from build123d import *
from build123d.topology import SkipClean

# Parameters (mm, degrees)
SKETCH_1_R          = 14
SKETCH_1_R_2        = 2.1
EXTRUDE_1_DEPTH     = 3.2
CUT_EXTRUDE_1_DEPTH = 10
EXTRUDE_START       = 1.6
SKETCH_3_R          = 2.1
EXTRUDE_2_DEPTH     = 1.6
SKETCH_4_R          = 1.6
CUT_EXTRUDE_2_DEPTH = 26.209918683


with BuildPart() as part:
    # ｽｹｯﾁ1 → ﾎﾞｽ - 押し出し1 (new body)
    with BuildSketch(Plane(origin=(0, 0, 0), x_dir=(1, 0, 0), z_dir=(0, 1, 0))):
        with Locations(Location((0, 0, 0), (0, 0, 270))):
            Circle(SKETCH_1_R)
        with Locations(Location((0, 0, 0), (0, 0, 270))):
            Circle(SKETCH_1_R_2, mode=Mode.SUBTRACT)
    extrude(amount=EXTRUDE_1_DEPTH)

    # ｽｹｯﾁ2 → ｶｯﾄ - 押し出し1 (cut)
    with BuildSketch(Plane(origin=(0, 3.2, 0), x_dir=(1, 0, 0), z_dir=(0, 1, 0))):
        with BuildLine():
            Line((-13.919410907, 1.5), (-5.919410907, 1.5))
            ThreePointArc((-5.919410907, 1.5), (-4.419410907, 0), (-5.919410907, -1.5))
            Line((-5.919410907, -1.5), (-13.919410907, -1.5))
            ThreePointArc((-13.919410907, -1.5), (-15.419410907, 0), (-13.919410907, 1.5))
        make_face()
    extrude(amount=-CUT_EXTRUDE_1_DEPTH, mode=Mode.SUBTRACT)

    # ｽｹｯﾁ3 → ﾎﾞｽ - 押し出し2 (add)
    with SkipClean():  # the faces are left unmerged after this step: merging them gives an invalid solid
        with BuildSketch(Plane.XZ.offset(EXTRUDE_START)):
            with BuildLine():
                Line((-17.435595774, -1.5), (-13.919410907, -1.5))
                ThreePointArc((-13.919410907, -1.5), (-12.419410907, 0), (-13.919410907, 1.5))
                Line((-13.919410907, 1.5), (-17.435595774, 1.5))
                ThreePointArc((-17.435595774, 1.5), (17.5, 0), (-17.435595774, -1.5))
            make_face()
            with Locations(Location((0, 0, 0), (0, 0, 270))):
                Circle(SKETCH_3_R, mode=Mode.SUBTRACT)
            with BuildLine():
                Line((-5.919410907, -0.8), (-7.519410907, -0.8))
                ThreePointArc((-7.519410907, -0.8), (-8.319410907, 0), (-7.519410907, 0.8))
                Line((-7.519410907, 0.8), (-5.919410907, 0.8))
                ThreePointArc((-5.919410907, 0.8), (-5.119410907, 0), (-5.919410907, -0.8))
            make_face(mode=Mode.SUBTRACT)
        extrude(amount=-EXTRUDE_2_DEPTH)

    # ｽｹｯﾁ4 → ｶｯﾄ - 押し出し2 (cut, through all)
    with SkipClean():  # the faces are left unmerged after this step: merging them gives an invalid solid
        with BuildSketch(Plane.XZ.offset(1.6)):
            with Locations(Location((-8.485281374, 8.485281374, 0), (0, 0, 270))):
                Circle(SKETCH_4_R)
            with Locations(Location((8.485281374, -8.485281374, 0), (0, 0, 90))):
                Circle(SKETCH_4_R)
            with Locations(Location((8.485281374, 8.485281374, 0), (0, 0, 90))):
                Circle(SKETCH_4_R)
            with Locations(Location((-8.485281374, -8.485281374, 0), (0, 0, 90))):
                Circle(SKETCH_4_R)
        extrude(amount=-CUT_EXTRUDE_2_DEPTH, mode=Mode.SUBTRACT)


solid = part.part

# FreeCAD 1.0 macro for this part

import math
import FreeCAD as App
import Part
import Sketcher

doc = App.newDocument("Part")
body = doc.addObject("PartDesign::Body", "Body")

# Sketch on XZ plane
sketch1 = body.newObject("Sketcher::SketchObject", "Sketch")
sketch1.AttachmentSupport = (doc.getObject("XZ_Plane"), [""])
sketch1.MapMode = "FlatFace"
sketch1.addGeometry([
    Part.Circle(App.Vector(0, 0, 0), App.Vector(0, 0, 1), 14),
    Part.Circle(App.Vector(0, 0, 0), App.Vector(0, 0, 1), 2.1),
], False)
sketch1.addConstraint([
    Sketcher.Constraint("Coincident", 0, 3, -1, 1),
    Sketcher.Constraint("Coincident", 1, 3, -1, 1),
    Sketcher.Constraint("Diameter", 0, 28.0),
    Sketcher.Constraint("Diameter", 1, 4.2),
])
pad1 = body.newObject("PartDesign::Pad", "Pad")
pad1.Profile = sketch1
pad1.Length = 3.2
pad1.Reversed = True

# Sketch on XZ plane
sketch2 = body.newObject("Sketcher::SketchObject", "Sketch001")
sketch2.AttachmentSupport = (doc.getObject("XZ_Plane"), [""])
sketch2.MapMode = "FlatFace"
sketch2.AttachmentOffset = App.Placement(App.Vector(0, 0, -3.2), App.Rotation())
sketch2.addGeometry([
    Part.LineSegment(App.Vector(-5.9, -1.5, 0), App.Vector(-13.9, -1.5, 0)),
    Part.ArcOfCircle(Part.Circle(App.Vector(-13.9, 0, 0), App.Vector(0, 0, 1), 1.5), math.radians(90), math.radians(270)),
    Part.LineSegment(App.Vector(-13.9, 1.5, 0), App.Vector(-5.9, 1.5, 0)),
    Part.ArcOfCircle(Part.Circle(App.Vector(-5.9, 0, 0), App.Vector(0, 0, 1), 1.5), math.radians(-90), math.radians(90)),
], False)
sketch2.addConstraint([
    Sketcher.Constraint("Tangent", 0, 2, 1, 2),
    Sketcher.Constraint("Tangent", 1, 1, 2, 1),
    Sketcher.Constraint("Tangent", 2, 2, 3, 2),
    Sketcher.Constraint("Tangent", 3, 1, 0, 1),
    Sketcher.Constraint("Horizontal", 0),
    Sketcher.Constraint("Horizontal", 2),
    Sketcher.Constraint("PointOnObject", 1, 3, -1),
    Sketcher.Constraint("Radius", 1, 1.5),
    Sketcher.Constraint("DistanceX", 0, 2, 0, 1, 8.0),
    Sketcher.Constraint("DistanceX", 1, 3, -1, 1, 13.919411),
])
pocket1 = body.newObject("PartDesign::Pocket", "Pocket")
pocket1.Profile = sketch2
pocket1.Length = 10
pocket1.Reversed = True

# Sketch on XZ plane
sketch3 = body.newObject("Sketcher::SketchObject", "Sketch002")
sketch3.AttachmentSupport = (doc.getObject("XZ_Plane"), [""])
sketch3.MapMode = "FlatFace"
sketch3.AttachmentOffset = App.Placement(App.Vector(0, 0, 1.6), App.Rotation())
sketch3.addGeometry([
    Part.LineSegment(App.Vector(-13.9, -1.5, 0), App.Vector(-17.4, -1.5, 0)),  # 0
    Part.ArcOfCircle(Part.Circle(App.Vector(0, 0, 0), App.Vector(0, 0, 1), 17.5), math.radians(-175), math.radians(175)),  # 1
    Part.LineSegment(App.Vector(-17.4, 1.5, 0), App.Vector(-13.9, 1.5, 0)),  # 2
    Part.ArcOfCircle(Part.Circle(App.Vector(-13.9, 0, 0), App.Vector(0, 0, 1), 1.5), math.radians(-90), math.radians(90)),  # 3
    Part.Circle(App.Vector(0, 0, 0), App.Vector(0, 0, 1), 2.1),  # 4
    Part.LineSegment(App.Vector(-5.9, -0.8, 0), App.Vector(-7.5, -0.8, 0)),  # 5
    Part.ArcOfCircle(Part.Circle(App.Vector(-7.5, 0, 0), App.Vector(0, 0, 1), 0.8), math.radians(90), math.radians(270)),  # 6
    Part.LineSegment(App.Vector(-7.5, 0.8, 0), App.Vector(-5.9, 0.8, 0)),  # 7
    Part.ArcOfCircle(Part.Circle(App.Vector(-5.9, 0, 0), App.Vector(0, 0, 1), 0.8), math.radians(-90), math.radians(90)),  # 8
], False)
sketch3.addConstraint([
    Sketcher.Constraint("Coincident", 0, 2, 1, 1),
    Sketcher.Constraint("Coincident", 1, 2, 2, 1),
    Sketcher.Constraint("Tangent", 2, 2, 3, 2),
    Sketcher.Constraint("Tangent", 3, 1, 0, 1),
    Sketcher.Constraint("Tangent", 5, 2, 6, 2),
    Sketcher.Constraint("Tangent", 6, 1, 7, 1),
    Sketcher.Constraint("Tangent", 7, 2, 8, 2),
    Sketcher.Constraint("Tangent", 8, 1, 5, 1),
    Sketcher.Constraint("Horizontal", 0),
    Sketcher.Constraint("Horizontal", 2),
    Sketcher.Constraint("Horizontal", 5),
    Sketcher.Constraint("Horizontal", 7),
    Sketcher.Constraint("Coincident", 1, 3, -1, 1),
    Sketcher.Constraint("Coincident", 4, 3, -1, 1),
    Sketcher.Constraint("PointOnObject", 3, 3, -1),
    Sketcher.Constraint("PointOnObject", 6, 3, -1),
    Sketcher.Constraint("Diameter", 4, 4.2),
    Sketcher.Constraint("Radius", 1, 17.5),
    Sketcher.Constraint("Radius", 3, 1.5),
    Sketcher.Constraint("Radius", 6, 0.8),
    Sketcher.Constraint("DistanceX", 5, 2, 5, 1, 1.6),
    Sketcher.Constraint("DistanceX", 3, 3, 8, 3, 8.0),
    Sketcher.Constraint("DistanceX", 0, 2, 0, 1, 3.516185),
])
pad2 = body.newObject("PartDesign::Pad", "Pad001")
pad2.Profile = sketch3
pad2.Length = 1.6
pad2.Reversed = True

# Sketch on XZ plane
sketch4 = body.newObject("Sketcher::SketchObject", "Sketch003")
sketch4.AttachmentSupport = (doc.getObject("XZ_Plane"), [""])
sketch4.MapMode = "FlatFace"
sketch4.AttachmentOffset = App.Placement(App.Vector(0, 0, 1.6), App.Rotation())
sketch4.addGeometry([
    Part.Circle(App.Vector(-8.5, 8.5, 0), App.Vector(0, 0, 1), 1.6),
    Part.Circle(App.Vector(8.5, -8.5, 0), App.Vector(0, 0, 1), 1.6),
    Part.Circle(App.Vector(8.5, 8.5, 0), App.Vector(0, 0, 1), 1.6),
    Part.Circle(App.Vector(-8.5, -8.5, 0), App.Vector(0, 0, 1), 1.6),
], False)
sketch4.addConstraint([
    Sketcher.Constraint("Equal", 0, 1),
    Sketcher.Constraint("Equal", 1, 2),
    Sketcher.Constraint("Equal", 2, 3),
    Sketcher.Constraint("Symmetric", 0, 3, 1, 3, -1, 1),
    Sketcher.Constraint("Symmetric", 2, 3, 3, 3, -1, 1),
    Sketcher.Constraint("Symmetric", 0, 3, 2, 3, -2),
    Sketcher.Constraint("Diameter", 0, 3.2),
    Sketcher.Constraint("DistanceX", 0, 3, -1, 1, 8.485281),
    Sketcher.Constraint("DistanceY", -1, 1, 0, 3, 8.485281),
])
pocket2 = body.newObject("PartDesign::Pocket", "Pocket001")
pocket2.Profile = sketch4
pocket2.Type = "ThroughAll"

doc.recompute()
